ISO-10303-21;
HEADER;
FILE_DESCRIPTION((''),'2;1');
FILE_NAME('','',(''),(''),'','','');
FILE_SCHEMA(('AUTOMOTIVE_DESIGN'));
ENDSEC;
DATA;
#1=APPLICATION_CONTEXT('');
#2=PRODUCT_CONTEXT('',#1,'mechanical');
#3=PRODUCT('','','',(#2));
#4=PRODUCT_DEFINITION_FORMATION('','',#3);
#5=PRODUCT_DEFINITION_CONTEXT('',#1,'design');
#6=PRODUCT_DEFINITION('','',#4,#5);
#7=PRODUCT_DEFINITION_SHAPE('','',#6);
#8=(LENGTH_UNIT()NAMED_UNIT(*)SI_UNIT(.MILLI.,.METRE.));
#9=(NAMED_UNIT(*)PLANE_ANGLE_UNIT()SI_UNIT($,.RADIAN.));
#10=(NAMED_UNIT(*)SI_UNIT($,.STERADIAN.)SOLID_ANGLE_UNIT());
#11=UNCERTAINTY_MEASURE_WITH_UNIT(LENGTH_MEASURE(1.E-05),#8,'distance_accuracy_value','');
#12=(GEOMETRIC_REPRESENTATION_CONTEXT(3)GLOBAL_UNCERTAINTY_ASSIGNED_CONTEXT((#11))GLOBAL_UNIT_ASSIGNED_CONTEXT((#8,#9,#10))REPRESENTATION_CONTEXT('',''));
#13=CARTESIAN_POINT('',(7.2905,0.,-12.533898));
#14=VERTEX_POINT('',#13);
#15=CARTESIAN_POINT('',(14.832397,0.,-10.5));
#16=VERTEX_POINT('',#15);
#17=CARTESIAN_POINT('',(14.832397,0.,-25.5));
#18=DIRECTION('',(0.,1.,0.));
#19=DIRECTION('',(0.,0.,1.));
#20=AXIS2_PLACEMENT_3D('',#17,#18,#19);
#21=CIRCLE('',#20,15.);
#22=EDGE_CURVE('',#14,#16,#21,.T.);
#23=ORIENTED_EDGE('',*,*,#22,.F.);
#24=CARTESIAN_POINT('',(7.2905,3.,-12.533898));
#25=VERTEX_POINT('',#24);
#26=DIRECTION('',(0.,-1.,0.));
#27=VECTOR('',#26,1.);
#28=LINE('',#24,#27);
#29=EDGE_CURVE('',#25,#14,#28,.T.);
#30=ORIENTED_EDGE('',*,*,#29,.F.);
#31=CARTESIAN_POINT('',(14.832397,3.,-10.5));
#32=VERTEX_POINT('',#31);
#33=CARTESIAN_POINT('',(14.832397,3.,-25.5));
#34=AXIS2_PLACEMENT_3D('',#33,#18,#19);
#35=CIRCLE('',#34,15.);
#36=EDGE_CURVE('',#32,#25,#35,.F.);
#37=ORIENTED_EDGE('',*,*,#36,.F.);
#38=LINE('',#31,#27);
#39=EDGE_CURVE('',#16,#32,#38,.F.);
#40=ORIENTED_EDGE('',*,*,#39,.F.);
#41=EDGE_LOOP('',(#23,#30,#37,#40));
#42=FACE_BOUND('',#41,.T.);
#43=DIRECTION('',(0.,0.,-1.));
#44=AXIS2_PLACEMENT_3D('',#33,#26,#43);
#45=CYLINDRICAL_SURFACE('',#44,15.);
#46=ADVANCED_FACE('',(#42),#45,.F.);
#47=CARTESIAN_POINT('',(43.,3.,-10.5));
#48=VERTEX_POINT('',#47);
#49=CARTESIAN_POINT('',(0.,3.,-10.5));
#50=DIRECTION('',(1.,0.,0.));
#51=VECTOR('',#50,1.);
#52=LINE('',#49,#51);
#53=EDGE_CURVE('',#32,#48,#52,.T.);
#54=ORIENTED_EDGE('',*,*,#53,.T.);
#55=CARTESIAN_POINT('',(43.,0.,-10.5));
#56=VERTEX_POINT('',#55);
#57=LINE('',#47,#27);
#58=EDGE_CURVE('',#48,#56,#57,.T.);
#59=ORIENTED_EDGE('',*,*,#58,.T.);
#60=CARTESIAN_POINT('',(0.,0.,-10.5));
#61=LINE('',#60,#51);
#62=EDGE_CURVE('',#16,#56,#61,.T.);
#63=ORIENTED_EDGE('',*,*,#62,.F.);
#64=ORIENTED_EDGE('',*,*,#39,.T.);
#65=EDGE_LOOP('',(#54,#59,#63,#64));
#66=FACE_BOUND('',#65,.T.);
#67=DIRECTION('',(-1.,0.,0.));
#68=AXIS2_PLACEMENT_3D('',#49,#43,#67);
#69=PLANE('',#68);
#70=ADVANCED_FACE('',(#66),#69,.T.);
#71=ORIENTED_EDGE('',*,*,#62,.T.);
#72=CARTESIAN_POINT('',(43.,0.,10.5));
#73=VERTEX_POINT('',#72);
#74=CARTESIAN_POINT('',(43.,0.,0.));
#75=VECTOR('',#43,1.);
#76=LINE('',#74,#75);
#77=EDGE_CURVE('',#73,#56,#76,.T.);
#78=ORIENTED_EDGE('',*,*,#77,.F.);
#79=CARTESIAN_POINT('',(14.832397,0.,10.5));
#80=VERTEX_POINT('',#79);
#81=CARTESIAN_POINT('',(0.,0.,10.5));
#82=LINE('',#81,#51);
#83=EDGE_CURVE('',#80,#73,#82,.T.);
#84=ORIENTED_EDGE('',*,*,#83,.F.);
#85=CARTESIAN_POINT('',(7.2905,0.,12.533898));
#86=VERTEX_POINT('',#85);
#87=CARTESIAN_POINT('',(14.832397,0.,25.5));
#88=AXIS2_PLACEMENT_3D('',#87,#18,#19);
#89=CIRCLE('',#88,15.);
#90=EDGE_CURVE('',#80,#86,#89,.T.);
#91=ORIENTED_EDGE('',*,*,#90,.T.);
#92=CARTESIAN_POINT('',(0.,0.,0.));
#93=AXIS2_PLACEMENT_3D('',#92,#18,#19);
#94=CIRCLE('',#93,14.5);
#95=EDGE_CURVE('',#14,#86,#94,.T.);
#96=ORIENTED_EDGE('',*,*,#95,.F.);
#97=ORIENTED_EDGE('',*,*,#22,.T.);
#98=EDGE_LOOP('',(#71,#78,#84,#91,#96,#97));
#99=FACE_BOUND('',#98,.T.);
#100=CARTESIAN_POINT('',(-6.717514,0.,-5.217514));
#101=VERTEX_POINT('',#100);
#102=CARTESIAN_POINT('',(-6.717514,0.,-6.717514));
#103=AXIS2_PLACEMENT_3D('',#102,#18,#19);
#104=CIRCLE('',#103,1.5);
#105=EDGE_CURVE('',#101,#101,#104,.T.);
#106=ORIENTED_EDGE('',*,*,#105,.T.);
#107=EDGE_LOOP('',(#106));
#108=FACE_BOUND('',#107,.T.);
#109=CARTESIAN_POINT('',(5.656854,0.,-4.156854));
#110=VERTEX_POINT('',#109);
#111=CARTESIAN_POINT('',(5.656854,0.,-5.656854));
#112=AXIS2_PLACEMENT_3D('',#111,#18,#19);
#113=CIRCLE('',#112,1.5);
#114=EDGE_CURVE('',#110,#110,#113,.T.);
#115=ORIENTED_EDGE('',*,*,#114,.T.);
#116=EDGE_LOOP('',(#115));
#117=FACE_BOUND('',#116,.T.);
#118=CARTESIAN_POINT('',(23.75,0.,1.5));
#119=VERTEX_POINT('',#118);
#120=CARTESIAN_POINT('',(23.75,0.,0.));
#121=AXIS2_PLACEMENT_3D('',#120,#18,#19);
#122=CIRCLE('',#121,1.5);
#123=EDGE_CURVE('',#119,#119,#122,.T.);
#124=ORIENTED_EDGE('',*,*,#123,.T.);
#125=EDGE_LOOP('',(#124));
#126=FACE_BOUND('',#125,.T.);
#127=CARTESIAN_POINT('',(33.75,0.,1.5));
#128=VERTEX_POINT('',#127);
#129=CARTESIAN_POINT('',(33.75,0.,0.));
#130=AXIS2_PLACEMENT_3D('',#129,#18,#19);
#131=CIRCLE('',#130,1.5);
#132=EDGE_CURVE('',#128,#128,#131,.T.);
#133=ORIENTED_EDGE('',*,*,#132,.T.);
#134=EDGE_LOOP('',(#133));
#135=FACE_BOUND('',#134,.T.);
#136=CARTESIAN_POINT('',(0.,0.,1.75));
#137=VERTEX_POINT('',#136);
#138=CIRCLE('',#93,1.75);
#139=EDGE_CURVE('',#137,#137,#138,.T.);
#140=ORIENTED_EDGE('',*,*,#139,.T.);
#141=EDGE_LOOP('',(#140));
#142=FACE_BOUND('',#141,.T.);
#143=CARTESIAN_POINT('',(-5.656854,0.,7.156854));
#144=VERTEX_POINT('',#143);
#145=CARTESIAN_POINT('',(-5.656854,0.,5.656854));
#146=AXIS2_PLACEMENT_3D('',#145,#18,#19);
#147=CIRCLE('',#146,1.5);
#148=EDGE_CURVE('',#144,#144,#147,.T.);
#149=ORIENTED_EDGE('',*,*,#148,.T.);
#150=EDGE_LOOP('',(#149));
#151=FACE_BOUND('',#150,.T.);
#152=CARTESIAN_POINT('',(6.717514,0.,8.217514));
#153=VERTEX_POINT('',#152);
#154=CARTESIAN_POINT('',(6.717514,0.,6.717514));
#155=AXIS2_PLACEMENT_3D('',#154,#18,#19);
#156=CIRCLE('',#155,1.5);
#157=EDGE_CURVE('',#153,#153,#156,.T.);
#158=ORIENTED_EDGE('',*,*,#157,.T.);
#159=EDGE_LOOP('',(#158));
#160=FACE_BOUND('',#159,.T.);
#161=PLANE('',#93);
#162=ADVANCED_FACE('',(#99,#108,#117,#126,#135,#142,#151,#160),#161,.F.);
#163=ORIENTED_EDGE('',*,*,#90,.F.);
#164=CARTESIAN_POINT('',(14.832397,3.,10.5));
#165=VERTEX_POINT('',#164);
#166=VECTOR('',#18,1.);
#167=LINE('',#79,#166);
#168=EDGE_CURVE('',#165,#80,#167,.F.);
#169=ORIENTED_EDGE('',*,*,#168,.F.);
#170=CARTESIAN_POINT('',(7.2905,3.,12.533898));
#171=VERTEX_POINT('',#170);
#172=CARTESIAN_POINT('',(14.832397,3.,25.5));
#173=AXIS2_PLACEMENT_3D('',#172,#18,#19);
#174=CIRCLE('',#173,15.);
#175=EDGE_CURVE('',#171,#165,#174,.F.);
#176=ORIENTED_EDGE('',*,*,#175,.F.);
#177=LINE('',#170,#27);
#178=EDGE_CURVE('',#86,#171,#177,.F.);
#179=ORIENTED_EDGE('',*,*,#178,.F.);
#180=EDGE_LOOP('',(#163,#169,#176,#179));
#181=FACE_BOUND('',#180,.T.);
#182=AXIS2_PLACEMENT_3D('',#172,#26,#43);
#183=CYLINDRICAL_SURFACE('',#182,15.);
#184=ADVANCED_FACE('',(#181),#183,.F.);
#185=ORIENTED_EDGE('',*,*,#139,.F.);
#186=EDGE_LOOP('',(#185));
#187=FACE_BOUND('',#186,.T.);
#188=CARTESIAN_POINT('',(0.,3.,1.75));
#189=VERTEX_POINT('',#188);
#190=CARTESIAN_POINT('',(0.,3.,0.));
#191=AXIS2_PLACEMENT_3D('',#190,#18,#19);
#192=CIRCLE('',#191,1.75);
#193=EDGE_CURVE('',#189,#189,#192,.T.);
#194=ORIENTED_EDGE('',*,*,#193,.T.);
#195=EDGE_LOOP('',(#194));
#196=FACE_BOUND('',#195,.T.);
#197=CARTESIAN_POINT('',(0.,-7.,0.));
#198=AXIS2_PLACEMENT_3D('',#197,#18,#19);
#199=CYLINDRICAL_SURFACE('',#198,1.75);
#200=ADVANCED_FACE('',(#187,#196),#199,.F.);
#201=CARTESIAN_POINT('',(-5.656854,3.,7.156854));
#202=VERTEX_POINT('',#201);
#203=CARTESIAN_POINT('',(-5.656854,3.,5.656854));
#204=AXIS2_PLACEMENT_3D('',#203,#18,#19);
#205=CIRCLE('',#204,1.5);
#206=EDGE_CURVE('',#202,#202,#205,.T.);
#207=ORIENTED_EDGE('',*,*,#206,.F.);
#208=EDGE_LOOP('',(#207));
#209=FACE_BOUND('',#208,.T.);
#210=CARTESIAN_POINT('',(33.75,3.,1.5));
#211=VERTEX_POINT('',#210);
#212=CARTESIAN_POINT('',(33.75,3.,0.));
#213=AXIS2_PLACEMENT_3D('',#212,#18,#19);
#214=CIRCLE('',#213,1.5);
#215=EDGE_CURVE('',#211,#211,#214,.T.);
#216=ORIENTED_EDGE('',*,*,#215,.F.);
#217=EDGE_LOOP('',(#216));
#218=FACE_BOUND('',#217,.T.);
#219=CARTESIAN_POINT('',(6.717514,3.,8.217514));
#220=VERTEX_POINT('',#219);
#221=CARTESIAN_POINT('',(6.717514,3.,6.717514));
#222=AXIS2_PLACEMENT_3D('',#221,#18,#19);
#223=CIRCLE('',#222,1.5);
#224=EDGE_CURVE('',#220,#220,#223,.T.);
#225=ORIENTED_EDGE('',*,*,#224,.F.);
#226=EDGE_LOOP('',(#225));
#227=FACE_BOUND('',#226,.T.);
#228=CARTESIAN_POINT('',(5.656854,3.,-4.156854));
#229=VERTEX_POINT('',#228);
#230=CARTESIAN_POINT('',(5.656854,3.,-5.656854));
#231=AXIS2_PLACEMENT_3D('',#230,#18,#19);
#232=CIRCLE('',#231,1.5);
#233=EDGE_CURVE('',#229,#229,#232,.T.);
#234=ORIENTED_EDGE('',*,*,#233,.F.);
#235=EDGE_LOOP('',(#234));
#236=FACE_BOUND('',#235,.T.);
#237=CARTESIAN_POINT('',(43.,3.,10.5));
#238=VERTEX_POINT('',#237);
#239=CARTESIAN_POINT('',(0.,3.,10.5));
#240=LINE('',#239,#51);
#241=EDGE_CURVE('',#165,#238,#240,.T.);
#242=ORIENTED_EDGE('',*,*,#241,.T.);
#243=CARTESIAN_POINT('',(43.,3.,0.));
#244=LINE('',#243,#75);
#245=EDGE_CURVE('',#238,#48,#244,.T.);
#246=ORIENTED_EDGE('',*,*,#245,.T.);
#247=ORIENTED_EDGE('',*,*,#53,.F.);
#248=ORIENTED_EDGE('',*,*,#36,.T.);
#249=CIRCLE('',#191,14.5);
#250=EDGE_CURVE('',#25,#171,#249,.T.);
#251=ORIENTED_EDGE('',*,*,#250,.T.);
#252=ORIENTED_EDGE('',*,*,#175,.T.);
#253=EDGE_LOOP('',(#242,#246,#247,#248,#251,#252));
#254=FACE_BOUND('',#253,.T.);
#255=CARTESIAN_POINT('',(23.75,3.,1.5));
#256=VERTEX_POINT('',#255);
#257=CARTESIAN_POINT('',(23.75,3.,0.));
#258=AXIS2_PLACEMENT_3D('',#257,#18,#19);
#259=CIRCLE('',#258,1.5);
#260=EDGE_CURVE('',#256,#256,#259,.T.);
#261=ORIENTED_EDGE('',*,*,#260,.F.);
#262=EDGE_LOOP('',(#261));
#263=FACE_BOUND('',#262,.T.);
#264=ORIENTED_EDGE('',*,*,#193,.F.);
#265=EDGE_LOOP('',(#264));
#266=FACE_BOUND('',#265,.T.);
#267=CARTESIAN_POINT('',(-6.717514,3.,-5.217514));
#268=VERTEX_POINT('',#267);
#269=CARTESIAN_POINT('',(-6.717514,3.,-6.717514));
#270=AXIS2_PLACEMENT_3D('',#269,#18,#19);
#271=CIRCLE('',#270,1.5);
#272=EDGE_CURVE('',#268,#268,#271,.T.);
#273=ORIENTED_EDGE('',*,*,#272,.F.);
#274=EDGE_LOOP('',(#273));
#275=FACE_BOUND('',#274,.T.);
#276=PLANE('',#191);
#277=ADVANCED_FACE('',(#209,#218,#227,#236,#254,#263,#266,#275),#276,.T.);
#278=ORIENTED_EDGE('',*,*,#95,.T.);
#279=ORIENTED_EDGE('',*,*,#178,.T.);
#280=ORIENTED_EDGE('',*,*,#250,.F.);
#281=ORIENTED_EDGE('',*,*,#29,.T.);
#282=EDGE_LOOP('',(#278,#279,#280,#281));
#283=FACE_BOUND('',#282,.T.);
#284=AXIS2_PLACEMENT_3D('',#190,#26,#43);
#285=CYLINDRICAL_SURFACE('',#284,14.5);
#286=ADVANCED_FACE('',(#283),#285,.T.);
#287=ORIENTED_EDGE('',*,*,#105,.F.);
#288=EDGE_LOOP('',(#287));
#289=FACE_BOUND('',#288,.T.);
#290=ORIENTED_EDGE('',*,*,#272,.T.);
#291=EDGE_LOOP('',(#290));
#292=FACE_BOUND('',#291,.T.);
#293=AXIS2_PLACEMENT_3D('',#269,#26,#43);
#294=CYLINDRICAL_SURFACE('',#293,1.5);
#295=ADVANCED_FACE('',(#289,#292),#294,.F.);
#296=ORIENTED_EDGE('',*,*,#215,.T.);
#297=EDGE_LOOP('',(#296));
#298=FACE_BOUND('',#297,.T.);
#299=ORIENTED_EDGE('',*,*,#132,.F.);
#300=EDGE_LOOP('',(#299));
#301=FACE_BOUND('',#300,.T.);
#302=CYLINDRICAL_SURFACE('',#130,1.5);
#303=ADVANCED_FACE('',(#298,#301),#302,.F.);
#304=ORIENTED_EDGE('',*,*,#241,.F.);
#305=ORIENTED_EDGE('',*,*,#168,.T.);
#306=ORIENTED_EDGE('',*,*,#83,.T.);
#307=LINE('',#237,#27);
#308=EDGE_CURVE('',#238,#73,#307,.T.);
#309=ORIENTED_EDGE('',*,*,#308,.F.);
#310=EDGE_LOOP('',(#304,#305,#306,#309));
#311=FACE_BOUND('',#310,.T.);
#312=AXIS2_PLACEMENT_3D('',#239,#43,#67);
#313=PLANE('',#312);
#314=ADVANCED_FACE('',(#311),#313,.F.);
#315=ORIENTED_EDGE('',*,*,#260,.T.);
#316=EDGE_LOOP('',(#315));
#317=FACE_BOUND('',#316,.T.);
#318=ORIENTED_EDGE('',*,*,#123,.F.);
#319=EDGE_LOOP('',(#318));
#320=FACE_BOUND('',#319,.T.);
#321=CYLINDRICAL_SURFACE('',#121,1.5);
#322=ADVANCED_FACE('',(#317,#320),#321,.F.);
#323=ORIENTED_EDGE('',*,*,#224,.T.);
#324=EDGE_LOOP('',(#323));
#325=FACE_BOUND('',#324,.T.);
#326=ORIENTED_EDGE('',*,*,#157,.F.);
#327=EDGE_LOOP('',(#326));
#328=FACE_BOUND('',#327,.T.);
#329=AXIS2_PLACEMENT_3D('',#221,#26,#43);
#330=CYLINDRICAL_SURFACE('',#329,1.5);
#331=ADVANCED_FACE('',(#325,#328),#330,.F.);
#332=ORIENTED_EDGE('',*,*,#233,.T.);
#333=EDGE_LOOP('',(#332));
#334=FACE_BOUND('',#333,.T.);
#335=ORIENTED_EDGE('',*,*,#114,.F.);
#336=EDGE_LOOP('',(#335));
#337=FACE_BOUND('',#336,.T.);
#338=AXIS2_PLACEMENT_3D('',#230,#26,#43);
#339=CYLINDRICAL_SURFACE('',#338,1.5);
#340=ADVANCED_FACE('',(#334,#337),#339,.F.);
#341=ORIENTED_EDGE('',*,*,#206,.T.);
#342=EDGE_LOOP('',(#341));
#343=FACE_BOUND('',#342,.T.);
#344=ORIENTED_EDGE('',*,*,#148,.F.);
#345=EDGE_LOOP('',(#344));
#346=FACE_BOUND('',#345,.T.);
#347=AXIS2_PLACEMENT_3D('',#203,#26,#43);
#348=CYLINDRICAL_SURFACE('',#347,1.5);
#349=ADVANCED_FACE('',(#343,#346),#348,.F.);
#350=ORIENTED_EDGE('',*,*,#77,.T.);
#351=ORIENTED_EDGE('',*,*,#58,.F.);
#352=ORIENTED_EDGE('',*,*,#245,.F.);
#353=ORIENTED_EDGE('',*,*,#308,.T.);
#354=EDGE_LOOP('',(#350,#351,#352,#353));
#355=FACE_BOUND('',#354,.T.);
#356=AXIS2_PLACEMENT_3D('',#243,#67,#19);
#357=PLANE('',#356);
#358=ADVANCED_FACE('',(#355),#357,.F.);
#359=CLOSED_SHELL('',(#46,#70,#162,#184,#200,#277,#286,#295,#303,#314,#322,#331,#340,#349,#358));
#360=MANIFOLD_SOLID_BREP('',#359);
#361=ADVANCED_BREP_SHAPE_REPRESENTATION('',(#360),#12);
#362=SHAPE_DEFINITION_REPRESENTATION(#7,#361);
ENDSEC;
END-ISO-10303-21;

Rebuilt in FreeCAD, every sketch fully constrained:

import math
import FreeCAD as App
import Part
import Sketcher

V = App.Vector


def edges_at(feature, points):
    """Names of the edges that pass closest to the given points."""
    edges = feature.Shape.Edges
    near = lambda p: min(range(len(edges)), key=lambda i: edges[i].distToShape(Part.Vertex(*p))[0])
    return sorted({f"Edge{near(p) + 1}" for p in points})

doc = App.newDocument("Part")
body = doc.addObject("PartDesign::Body", "Body")

sketch1 = body.newObject("Sketcher::SketchObject", "Sketch")
sketch1.AttachmentSupport = (doc.getObject("XZ_Plane"), [""])
sketch1.MapMode = "FlatFace"
sketch1.addGeometry([
    Part.LineSegment(V(10, 10.5, 0), V(43, 10.5, 0)),
    Part.LineSegment(V(43, 10.5, 0), V(43, -10.5, 0)),
    Part.LineSegment(V(43, -10.5, 0), V(10, -10.5, 0)),
    Part.ArcOfCircle(Part.Circle(V(0, 0, 0), V(0, 0, 1), 14.5), math.radians(46), math.radians(314)),
    Part.Circle(V(5.7, -5.7, 0), V(0, 0, 1), 1.5),
    Part.Circle(V(-5.7, 5.7, 0), V(0, 0, 1), 1.5),
    Part.Circle(V(6.7, 6.7, 0), V(0, 0, 1), 1.5),
    Part.Circle(V(-6.7, -6.7, 0), V(0, 0, 1), 1.5),
], False)
sketch1.addConstraint([
    Sketcher.Constraint("Coincident", 0, 2, 1, 1),
    Sketcher.Constraint("Coincident", 1, 2, 2, 1),
    Sketcher.Constraint("Coincident", 2, 2, 3, 2),
    Sketcher.Constraint("Coincident", 3, 1, 0, 1),
    Sketcher.Constraint("Horizontal", 0),
    Sketcher.Constraint("Vertical", 1),
    Sketcher.Constraint("Horizontal", 2),
    Sketcher.Constraint("Coincident", 3, 3, -1, 1),
    Sketcher.Constraint("Equal", 4, 5),
    Sketcher.Constraint("Equal", 5, 6),
    Sketcher.Constraint("Equal", 6, 7),
    Sketcher.Constraint("Symmetric", 4, 3, 5, 3, -1, 1),
    Sketcher.Constraint("Symmetric", 6, 3, 7, 3, -1, 1),
    Sketcher.Constraint("Vertical", 2, 2, 3, 1),
    Sketcher.Constraint("Diameter", 4, 3.0),
    Sketcher.Constraint("Radius", 3, 14.5),
    Sketcher.Constraint("DistanceX", 0, 1, 0, 2, 33.0),
    Sketcher.Constraint("DistanceY", 1, 2, 1, 1, 21.0),
    Sketcher.Constraint("DistanceX", 5, 3, 4, 3, 11.313708),
    Sketcher.Constraint("DistanceY", 4, 3, 5, 3, 11.313708),
    Sketcher.Constraint("DistanceX", 4, 3, 6, 3, 1.06066),
    Sketcher.Constraint("DistanceY", 4, 3, 6, 3, 12.374369),
])
pad1 = body.newObject("PartDesign::Pad", "Pad")
pad1.Profile = sketch1
pad1.Length = 3
pad1.Reversed = True
doc.recompute()

fillet = body.newObject("PartDesign::Fillet", "Fillet")
fillet.Base = (pad1, edges_at(pad1, [(10, 1.5, -10.5), (10, 1.5, 10.5)]))
fillet.Radius = 15

sketch2 = body.newObject("Sketcher::SketchObject", "Sketch001")
sketch2.AttachmentSupport = (doc.getObject("XZ_Plane"), [""])
sketch2.MapMode = "FlatFace"
sketch2.AttachmentOffset = App.Placement(V(0, 0, -3), App.Rotation())
sketch2.addGeometry([
    Part.Circle(V(23.8, 0, 0), V(0, 0, 1), 1.5),
    Part.Circle(V(33.8, 0, 0), V(0, 0, 1), 1.5),
], False)
sketch2.addConstraint([
    Sketcher.Constraint("Equal", 0, 1),
    Sketcher.Constraint("PointOnObject", 0, 3, -1),
    Sketcher.Constraint("PointOnObject", 1, 3, -1),
    Sketcher.Constraint("Diameter", 0, 3.0),
    Sketcher.Constraint("DistanceX", 0, 3, 1, 3, 10.0),
    Sketcher.Constraint("DistanceX", -1, 1, 0, 3, 23.75),
])
pocket1 = body.newObject("PartDesign::Pocket", "Pocket")
pocket1.Profile = sketch2
pocket1.Length = 3
pocket1.Reversed = True

sketch3 = body.newObject("Sketcher::SketchObject", "Sketch002")
sketch3.AttachmentSupport = (doc.getObject("XZ_Plane"), [""])
sketch3.MapMode = "FlatFace"
sketch3.AttachmentOffset = App.Placement(V(0, 0, -3), App.Rotation())
sketch3.addGeometry(Part.Circle(V(0, 0, 0), V(0, 0, 1), 1.8), False)
sketch3.addConstraint([
    Sketcher.Constraint("Coincident", 0, 3, -1, 1),
    Sketcher.Constraint("Diameter", 0, 3.5),
])
pocket2 = body.newObject("PartDesign::Pocket", "Pocket001")
pocket2.Profile = sketch3
pocket2.Length = 10
pocket2.Reversed = True

doc.recompute()
